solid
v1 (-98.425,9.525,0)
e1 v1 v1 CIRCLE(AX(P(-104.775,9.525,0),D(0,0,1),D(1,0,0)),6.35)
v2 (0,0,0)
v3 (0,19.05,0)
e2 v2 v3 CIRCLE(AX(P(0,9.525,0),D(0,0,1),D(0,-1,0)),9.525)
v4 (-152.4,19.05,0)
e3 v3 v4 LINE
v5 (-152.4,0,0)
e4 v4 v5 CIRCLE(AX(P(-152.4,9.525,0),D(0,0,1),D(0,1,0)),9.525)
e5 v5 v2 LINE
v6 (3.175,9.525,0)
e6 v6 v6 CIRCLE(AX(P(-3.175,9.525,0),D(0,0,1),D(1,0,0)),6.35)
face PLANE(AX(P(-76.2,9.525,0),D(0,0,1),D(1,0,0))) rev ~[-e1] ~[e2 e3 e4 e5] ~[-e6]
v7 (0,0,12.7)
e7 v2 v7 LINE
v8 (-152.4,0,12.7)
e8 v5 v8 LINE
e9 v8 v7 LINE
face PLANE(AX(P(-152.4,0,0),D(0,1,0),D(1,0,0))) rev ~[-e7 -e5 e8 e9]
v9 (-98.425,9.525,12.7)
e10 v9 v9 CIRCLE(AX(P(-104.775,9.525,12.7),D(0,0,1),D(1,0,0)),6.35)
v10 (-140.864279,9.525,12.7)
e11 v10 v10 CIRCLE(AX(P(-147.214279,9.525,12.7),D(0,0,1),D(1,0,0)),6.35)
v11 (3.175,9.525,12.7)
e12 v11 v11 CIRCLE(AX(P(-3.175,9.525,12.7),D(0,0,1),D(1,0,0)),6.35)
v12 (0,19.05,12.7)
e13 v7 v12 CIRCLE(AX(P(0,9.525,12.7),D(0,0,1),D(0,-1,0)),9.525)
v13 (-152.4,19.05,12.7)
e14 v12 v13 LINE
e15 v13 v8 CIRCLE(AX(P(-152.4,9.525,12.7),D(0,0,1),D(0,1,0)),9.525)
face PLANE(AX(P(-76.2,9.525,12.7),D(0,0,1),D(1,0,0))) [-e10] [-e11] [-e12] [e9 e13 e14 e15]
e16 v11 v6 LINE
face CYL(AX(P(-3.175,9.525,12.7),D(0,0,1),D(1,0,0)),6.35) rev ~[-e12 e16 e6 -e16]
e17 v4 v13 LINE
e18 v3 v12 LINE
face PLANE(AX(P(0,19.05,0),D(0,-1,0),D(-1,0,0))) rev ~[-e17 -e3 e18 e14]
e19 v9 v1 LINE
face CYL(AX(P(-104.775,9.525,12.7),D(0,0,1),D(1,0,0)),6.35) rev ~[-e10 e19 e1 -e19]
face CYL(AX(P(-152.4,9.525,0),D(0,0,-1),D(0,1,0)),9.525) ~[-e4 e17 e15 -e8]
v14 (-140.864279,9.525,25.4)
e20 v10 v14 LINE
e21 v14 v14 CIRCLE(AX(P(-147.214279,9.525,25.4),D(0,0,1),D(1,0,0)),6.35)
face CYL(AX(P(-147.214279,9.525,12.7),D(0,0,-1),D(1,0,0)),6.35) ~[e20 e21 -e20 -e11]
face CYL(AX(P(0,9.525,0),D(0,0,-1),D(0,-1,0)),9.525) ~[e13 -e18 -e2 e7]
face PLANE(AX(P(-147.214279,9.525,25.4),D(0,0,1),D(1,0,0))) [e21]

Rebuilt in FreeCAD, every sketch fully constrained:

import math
import FreeCAD as App
import Part
import Sketcher

V = App.Vector
Q = App.Units.Quantity

doc = App.newDocument("Part")
body = doc.addObject("PartDesign::Body", "Body")

sketch1 = body.newObject("Sketcher::SketchObject", "Sketch")
sketch1.AttachmentSupport = (doc.getObject("XY_Plane"), [""])
sketch1.MapMode = "FlatFace"
sketch1.addGeometry(Part.LineSegment(V(-152, 0, 0), V(0, 0, 0)), False)
sketch1.addGeometry(Part.ArcOfCircle(Part.Circle(V(0, 10, 0), V(0, 0, 1), 10), math.radians(-90), math.radians(90)), False)
sketch1.addGeometry(Part.LineSegment(V(0, 19, 0), V(-152, 19, 0)), False)
sketch1.addGeometry(Part.ArcOfCircle(Part.Circle(V(-152, 10, 0), V(0, 0, 1), 10), math.radians(90), math.radians(270)), False)
sketch1.addConstraint(Sketcher.Constraint("Tangent", 0, 2, 1, 1))
sketch1.addConstraint(Sketcher.Constraint("Tangent", 1, 2, 2, 1))
sketch1.addConstraint(Sketcher.Constraint("Tangent", 2, 2, 3, 1))
sketch1.addConstraint(Sketcher.Constraint("Tangent", 3, 2, 0, 1))
sketch1.addConstraint(Sketcher.Constraint("Horizontal", 0))
sketch1.addConstraint(Sketcher.Constraint("Horizontal", 2))
sketch1.addConstraint(Sketcher.Constraint("Coincident", 0, 2, -1, 1))
sketch1.addConstraint(Sketcher.Constraint("DistanceX", 0, 1, 0, 2, Q("6 in")))
sketch1.addConstraint(Sketcher.Constraint("Radius", 1, Q("0.375 in")))
pad1 = body.newObject("PartDesign::Pad", "Pad")
pad1.Profile = sketch1
pad1.Length = Q("0.5 in")

sketch2 = body.newObject("Sketcher::SketchObject", "Sketch001")
sketch2.AttachmentSupport = (doc.getObject("XY_Plane"), [""])
sketch2.MapMode = "FlatFace"
sketch2.AttachmentOffset = App.Placement(V(0, 0, 0.5 * 25.4), App.Rotation())
sketch2.addGeometry(Part.Circle(V(-105, 10, 0), V(0, 0, 1), 6), False)
sketch2.addGeometry(Part.Circle(V(-3, 10, 0), V(0, 0, 1), 6), False)
sketch2.addConstraint(Sketcher.Constraint("Equal", 0, 1))
sketch2.addConstraint(Sketcher.Constraint("Horizontal", 0, 3, 1, 3))
sketch2.addConstraint(Sketcher.Constraint("Diameter", 0, Q("0.5 in")))
sketch2.addConstraint(Sketcher.Constraint("DistanceX", 0, 3, 1, 3, Q("4 in")))
sketch2.addConstraint(Sketcher.Constraint("DistanceX", 0, 3, -1, 1, Q("4.125 in")))
sketch2.addConstraint(Sketcher.Constraint("DistanceY", -1, 1, 0, 3, Q("0.375 in")))
pocket1 = body.newObject("PartDesign::Pocket", "Pocket")
pocket1.Profile = sketch2
pocket1.Length = Q("1 in")

sketch3 = body.newObject("Sketcher::SketchObject", "Sketch002")
sketch3.AttachmentSupport = (doc.getObject("XY_Plane"), [""])
sketch3.MapMode = "FlatFace"
sketch3.AttachmentOffset = App.Placement(V(0, 0, 0.5 * 25.4), App.Rotation())
sketch3.addGeometry(Part.Circle(V(-147, 10, 0), V(0, 0, 1), 6), False)
sketch3.addConstraint(Sketcher.Constraint("Diameter", 0, Q("0.5 in")))
sketch3.addConstraint(Sketcher.Constraint("DistanceY", -1, 1, 0, 3, Q("0.375 in")))
sketch3.addConstraint(Sketcher.Constraint("DistanceX", 0, 3, -1, 1, 147.214279))
pad2 = body.newObject("PartDesign::Pad", "Pad001")
pad2.Profile = sketch3
pad2.Length = Q("0.5 in")

doc.recompute()
